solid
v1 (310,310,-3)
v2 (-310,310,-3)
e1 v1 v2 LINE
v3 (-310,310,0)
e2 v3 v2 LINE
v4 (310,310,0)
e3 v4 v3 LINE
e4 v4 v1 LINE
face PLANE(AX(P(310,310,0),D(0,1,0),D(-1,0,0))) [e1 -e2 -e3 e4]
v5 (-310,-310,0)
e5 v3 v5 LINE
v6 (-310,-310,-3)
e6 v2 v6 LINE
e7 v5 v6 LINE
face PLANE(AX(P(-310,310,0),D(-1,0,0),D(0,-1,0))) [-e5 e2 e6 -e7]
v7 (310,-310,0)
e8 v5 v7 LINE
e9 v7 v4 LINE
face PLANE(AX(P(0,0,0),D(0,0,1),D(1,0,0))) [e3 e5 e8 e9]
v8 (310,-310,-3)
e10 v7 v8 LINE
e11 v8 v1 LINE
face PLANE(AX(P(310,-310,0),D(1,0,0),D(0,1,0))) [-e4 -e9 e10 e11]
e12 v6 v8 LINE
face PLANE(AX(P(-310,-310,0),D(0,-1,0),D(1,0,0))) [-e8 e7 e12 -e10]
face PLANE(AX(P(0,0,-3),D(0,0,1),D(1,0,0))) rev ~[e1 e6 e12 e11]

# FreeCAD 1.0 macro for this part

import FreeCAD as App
import Part
import Sketcher
Q = App.Units.Quantity

doc = App.newDocument("Part")
body = doc.addObject("PartDesign::Body", "Body")

sketch1 = body.newObject("Sketcher::SketchObject", "Sketch")
sketch1.AttachmentSupport = (doc.getObject("XY_Plane"), [""])
sketch1.MapMode = "FlatFace"
sketch1.addGeometry([
    Part.LineSegment(App.Vector(-310, 310, 0), App.Vector(-310, -310, 0)),
    Part.LineSegment(App.Vector(-310, -310, 0), App.Vector(310, -310, 0)),
    Part.LineSegment(App.Vector(310, -310, 0), App.Vector(310, 310, 0)),
    Part.LineSegment(App.Vector(310, 310, 0), App.Vector(-310, 310, 0)),
], False)
sketch1.addConstraint([
    Sketcher.Constraint("Coincident", 0, 2, 1, 1),
    Sketcher.Constraint("Coincident", 1, 2, 2, 1),
    Sketcher.Constraint("Coincident", 2, 2, 3, 1),
    Sketcher.Constraint("Coincident", 3, 2, 0, 1),
    Sketcher.Constraint("Vertical", 0),
    Sketcher.Constraint("Horizontal", 1),
    Sketcher.Constraint("Vertical", 2),
    Sketcher.Constraint("Horizontal", 3),
    Sketcher.Constraint("Symmetric", 0, 2, 2, 2, -1, 1),
    Sketcher.Constraint("Equal", 3, 0),
    Sketcher.Constraint("DistanceX", 1, 1, 1, 2, Q("620 mm")),
])
pad1 = body.newObject("PartDesign::Pad", "Pad")
pad1.Profile = sketch1
pad1.Length = 3
pad1.Reversed = True

doc.recompute()
